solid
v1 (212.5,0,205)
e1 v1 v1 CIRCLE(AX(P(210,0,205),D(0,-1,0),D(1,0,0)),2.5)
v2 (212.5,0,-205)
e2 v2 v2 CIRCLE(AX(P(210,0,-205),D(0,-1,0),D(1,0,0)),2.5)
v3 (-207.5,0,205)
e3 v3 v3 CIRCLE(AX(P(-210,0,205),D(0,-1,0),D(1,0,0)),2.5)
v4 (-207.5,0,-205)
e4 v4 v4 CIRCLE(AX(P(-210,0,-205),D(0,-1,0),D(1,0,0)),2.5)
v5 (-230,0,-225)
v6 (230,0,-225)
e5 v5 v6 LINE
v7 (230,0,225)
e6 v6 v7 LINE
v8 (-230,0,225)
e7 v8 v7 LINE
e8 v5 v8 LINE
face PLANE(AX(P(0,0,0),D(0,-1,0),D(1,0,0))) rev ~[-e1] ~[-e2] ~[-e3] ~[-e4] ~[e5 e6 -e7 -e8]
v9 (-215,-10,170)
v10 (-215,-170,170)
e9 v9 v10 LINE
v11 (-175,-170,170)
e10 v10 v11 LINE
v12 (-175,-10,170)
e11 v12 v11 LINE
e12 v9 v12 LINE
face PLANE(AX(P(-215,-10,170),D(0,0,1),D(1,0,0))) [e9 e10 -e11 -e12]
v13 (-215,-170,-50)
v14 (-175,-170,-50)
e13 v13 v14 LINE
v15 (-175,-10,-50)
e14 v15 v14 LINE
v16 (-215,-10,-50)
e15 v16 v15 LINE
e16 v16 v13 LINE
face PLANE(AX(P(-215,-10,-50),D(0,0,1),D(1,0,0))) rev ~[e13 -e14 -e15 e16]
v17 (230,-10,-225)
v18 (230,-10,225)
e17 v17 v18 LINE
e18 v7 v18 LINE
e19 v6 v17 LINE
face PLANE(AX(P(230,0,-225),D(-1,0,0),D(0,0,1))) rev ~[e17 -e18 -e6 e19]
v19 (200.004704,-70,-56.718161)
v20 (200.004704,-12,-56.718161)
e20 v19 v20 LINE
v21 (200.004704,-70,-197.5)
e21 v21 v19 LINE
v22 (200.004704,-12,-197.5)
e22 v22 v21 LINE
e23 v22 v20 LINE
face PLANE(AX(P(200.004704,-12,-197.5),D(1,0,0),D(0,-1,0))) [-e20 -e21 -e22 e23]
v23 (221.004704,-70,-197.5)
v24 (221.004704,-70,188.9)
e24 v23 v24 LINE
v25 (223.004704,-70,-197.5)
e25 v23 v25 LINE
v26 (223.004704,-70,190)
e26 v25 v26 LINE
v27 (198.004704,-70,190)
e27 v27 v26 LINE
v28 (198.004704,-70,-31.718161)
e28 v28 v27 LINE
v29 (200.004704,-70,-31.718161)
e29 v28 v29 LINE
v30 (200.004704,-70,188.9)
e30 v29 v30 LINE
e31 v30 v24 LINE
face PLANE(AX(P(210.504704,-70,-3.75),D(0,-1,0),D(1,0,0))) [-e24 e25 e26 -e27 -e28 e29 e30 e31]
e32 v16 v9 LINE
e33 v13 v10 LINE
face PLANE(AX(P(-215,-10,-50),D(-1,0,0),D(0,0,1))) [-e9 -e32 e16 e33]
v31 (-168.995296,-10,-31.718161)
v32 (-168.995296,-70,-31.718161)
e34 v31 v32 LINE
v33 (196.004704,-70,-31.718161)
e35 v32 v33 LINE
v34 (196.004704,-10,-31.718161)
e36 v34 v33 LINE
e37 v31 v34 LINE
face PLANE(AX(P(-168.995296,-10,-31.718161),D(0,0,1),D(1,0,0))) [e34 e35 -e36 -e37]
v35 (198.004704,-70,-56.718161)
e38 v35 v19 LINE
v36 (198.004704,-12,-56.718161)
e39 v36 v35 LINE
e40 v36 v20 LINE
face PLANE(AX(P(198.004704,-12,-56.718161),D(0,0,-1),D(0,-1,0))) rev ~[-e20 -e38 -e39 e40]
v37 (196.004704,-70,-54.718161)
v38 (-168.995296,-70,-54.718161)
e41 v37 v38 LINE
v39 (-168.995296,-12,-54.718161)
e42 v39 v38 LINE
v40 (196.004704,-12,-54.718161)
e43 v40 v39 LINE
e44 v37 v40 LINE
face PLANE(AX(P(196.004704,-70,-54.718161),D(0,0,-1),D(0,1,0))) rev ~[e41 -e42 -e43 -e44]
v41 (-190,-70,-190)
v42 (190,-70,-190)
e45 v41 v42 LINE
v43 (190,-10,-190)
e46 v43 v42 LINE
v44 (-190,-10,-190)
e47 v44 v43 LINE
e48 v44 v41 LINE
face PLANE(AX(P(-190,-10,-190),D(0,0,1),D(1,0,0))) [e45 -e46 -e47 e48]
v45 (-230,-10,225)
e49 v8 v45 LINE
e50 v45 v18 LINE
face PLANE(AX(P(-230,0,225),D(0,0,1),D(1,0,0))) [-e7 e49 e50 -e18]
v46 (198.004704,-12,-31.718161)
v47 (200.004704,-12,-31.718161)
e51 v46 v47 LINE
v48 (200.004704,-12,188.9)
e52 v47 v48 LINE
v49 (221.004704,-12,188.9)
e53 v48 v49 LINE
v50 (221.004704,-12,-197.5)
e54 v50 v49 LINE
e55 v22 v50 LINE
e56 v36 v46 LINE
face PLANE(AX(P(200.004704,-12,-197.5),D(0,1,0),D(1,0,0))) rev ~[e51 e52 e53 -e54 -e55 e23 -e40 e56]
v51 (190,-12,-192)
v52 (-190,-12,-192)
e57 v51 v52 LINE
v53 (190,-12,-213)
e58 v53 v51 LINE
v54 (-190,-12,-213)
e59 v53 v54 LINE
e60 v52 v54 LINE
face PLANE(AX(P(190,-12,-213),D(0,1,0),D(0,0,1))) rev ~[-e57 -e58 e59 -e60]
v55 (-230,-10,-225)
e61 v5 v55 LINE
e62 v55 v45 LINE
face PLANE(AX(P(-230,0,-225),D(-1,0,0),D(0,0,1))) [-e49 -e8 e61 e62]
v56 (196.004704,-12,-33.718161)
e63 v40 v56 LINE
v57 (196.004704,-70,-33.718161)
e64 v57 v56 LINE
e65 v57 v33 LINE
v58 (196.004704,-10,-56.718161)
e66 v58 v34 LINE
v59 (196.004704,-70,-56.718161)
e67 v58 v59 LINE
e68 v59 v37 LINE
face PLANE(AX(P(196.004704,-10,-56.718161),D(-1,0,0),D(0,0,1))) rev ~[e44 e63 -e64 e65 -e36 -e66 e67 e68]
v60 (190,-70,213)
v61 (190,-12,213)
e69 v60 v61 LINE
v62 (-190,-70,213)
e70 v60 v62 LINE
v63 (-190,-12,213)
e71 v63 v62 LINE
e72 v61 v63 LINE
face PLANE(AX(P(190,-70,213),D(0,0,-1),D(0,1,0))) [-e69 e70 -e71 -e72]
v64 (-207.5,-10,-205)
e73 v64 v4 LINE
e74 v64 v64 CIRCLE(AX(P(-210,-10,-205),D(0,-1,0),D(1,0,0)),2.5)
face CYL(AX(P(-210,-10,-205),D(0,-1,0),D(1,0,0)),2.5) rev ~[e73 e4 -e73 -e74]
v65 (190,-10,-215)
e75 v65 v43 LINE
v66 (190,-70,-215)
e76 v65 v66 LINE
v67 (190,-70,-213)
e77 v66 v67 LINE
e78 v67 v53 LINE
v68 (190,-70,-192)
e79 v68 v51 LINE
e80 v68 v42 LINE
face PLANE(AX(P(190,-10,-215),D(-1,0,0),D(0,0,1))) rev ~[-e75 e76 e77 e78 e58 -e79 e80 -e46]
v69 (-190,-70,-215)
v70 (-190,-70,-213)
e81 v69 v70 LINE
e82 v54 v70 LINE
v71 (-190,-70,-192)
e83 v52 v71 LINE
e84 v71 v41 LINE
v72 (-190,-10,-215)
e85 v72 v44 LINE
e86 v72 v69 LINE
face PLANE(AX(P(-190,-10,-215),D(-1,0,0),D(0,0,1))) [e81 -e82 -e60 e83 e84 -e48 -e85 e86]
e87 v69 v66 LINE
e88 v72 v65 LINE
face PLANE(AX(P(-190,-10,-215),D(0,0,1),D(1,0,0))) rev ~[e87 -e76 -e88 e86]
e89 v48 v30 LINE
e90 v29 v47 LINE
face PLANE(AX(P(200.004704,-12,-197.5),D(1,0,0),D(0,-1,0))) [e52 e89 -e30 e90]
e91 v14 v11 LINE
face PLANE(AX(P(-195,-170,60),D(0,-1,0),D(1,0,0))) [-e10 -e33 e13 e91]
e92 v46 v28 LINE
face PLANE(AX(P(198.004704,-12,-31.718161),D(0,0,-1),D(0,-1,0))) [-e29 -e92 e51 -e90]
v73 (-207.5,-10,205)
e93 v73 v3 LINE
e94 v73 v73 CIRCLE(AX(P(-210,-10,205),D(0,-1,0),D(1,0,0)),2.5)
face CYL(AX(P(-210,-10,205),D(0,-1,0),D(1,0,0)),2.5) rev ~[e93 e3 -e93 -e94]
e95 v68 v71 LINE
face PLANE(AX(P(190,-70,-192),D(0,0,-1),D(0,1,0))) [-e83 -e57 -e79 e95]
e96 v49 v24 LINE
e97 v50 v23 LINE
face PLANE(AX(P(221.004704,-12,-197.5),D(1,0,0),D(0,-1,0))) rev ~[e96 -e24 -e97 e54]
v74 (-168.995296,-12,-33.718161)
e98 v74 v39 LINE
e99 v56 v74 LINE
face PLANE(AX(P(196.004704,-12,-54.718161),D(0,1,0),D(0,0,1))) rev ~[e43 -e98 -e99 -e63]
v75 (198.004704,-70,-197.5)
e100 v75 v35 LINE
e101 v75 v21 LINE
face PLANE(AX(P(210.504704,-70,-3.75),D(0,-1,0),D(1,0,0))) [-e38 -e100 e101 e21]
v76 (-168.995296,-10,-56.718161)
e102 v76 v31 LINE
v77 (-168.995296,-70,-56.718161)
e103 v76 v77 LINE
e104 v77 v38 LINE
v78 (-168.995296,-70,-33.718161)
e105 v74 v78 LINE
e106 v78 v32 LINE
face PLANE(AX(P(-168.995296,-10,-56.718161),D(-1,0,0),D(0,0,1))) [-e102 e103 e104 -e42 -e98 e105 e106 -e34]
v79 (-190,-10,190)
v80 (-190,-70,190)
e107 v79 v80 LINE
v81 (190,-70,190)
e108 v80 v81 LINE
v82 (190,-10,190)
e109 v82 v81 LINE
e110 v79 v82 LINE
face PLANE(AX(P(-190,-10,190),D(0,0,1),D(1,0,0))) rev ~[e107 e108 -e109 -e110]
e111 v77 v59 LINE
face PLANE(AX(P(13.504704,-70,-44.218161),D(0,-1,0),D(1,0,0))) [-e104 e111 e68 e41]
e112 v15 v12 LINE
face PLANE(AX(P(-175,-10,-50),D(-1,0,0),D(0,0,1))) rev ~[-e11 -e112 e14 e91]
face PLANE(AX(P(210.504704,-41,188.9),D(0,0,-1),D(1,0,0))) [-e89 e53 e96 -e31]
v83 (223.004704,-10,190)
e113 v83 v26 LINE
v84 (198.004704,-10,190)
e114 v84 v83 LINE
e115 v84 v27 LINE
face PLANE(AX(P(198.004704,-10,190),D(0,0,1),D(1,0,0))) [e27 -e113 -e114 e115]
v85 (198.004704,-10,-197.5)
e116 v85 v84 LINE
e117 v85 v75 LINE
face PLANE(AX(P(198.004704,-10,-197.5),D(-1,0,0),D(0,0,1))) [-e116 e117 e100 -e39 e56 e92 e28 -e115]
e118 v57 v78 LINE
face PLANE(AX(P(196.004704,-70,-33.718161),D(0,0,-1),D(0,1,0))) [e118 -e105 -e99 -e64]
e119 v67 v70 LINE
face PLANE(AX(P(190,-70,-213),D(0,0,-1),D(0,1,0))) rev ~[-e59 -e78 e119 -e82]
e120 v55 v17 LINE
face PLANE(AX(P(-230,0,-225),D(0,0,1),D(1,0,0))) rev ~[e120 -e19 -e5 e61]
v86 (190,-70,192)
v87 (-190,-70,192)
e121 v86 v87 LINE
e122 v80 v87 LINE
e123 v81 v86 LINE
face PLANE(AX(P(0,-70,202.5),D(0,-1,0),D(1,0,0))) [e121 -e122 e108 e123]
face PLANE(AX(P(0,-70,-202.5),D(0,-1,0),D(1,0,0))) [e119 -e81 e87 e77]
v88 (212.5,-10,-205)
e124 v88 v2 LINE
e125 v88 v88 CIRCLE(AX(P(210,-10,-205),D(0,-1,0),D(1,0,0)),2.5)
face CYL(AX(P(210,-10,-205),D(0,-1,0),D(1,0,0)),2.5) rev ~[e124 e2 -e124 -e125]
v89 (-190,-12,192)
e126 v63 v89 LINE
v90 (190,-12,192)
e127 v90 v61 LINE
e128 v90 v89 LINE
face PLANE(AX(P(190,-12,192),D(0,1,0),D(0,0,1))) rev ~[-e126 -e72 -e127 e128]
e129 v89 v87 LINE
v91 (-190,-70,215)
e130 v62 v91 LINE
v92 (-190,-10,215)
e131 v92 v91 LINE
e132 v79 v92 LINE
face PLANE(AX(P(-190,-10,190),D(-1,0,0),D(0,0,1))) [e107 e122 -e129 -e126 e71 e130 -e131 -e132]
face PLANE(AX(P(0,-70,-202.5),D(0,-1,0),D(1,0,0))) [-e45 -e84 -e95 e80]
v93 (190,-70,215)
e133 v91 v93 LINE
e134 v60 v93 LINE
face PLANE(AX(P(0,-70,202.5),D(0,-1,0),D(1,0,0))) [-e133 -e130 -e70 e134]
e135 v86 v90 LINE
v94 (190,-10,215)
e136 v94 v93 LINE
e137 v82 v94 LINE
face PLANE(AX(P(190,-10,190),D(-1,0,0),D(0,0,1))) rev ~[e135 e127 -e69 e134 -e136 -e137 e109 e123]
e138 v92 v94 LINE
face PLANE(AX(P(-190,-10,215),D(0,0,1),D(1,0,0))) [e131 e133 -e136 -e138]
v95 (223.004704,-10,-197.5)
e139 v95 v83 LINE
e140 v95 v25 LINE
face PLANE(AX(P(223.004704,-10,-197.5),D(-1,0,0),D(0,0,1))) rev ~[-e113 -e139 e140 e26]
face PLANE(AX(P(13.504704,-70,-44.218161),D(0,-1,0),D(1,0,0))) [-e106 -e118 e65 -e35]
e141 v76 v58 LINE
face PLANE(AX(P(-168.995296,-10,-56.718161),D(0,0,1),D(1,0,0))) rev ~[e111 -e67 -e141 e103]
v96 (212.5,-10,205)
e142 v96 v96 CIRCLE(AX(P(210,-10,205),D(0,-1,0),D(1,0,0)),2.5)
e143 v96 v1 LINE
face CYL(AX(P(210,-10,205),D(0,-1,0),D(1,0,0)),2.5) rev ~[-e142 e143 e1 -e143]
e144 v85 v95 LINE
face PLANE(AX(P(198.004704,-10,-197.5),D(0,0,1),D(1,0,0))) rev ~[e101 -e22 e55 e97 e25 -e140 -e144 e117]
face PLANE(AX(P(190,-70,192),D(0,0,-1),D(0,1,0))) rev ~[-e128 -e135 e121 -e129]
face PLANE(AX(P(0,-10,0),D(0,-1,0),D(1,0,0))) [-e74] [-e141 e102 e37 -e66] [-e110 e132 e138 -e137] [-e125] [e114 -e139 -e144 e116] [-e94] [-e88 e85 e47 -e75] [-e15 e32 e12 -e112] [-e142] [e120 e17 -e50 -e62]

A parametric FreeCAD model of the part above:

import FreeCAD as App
import Part
import Sketcher


def add_polygon(sketch, points):
    """Adds a closed chain of lines whose ends are joined by coincident constraints."""
    first, n = sketch.GeometryCount, len(points)
    for a, b in zip(points, points[1:] + points[:1]):
        sketch.addGeometry(Part.LineSegment(App.Vector(*a, 0), App.Vector(*b, 0)), False)
    for i in range(n):
        sketch.addConstraint(Sketcher.Constraint("Coincident", first + i, 2, first + (i + 1) % n, 1))

doc = App.newDocument("Part")
body = doc.addObject("PartDesign::Body", "Body")

# Sketch on XZ plane
sketch1 = doc.addObject("Sketcher::SketchObject", "Sketch")
body.addObject(sketch1)
sketch1.AttachmentSupport = (doc.XZ_Plane, [""])
sketch1.MapMode = "FlatFace"
add_polygon(sketch1, [(-230, 225), (-230, -225), (230, -225), (230, 225)])  # lines 0-3
sketch1.addConstraint([
    Sketcher.Constraint("Vertical", 0),
    Sketcher.Constraint("Horizontal", 1),
    Sketcher.Constraint("Vertical", 2),
    Sketcher.Constraint("Horizontal", 3),
    Sketcher.Constraint("Symmetric", 0, 2, 2, 2, -1, 1),
    Sketcher.Constraint("DistanceX", 1, 1, 1, 2, 460.0),
    Sketcher.Constraint("DistanceY", 0, 2, 0, 1, 450.0),
])
pad1 = doc.addObject("PartDesign::Pad", "Pad")
body.addObject(pad1)
pad1.Profile = sketch1
pad1.Length = 10

# Sketch on XZ plane
sketch2 = doc.addObject("Sketcher::SketchObject", "Sketch001")
body.addObject(sketch2)
sketch2.AttachmentSupport = (doc.XZ_Plane, [""])
sketch2.MapMode = "FlatFace"
sketch2.AttachmentOffset = App.Placement(App.Vector(0, 0, 10), App.Rotation())
sketch2.addGeometry([
    Part.Circle(App.Vector(210, 205, 0), App.Vector(0, 0, 1), 2.5),
    Part.Circle(App.Vector(-210, 205, 0), App.Vector(0, 0, 1), 2.5),
    Part.Circle(App.Vector(-210, -205, 0), App.Vector(0, 0, 1), 2.5),
    Part.Circle(App.Vector(210, -205, 0), App.Vector(0, 0, 1), 2.5),
], False)
sketch2.addConstraint([
    Sketcher.Constraint("Equal", 0, 1),
    Sketcher.Constraint("Equal", 1, 2),
    Sketcher.Constraint("Equal", 2, 3),
    Sketcher.Constraint("Symmetric", 0, 3, 2, 3, -1, 1),
    Sketcher.Constraint("Symmetric", 1, 3, 3, 3, -1, 1),
    Sketcher.Constraint("Symmetric", 0, 3, 1, 3, -2),
    Sketcher.Constraint("Diameter", 0, 5.0),
    Sketcher.Constraint("DistanceX", -1, 1, 0, 3, 210.0),
    Sketcher.Constraint("DistanceY", -1, 1, 0, 3, 205.0),
])
pocket1 = doc.addObject("PartDesign::Pocket", "Pocket")
body.addObject(pocket1)
pocket1.Profile = sketch2
pocket1.Length = 23

# Sketch on XZ plane
sketch3 = doc.addObject("Sketcher::SketchObject", "Sketch002")
body.addObject(sketch3)
sketch3.AttachmentSupport = (doc.XZ_Plane, [""])
sketch3.MapMode = "FlatFace"
sketch3.AttachmentOffset = App.Placement(App.Vector(0, 0, 10), App.Rotation())
add_polygon(sketch3, [(-215, 170), (-215, -50), (-175, -50), (-175, 170)])  # lines 0-3
sketch3.addConstraint([
    Sketcher.Constraint("Vertical", 0),
    Sketcher.Constraint("Horizontal", 1),
    Sketcher.Constraint("Vertical", 2),
    Sketcher.Constraint("Horizontal", 3),
    Sketcher.Constraint("DistanceX", 1, 1, 1, 2, 40.0),
    Sketcher.Constraint("DistanceY", 0, 2, 0, 1, 220.0),
    Sketcher.Constraint("DistanceX", 0, 2, -1, 1, 215.0),
    Sketcher.Constraint("DistanceY", 0, 2, -1, 1, 50.0),
])
pad2 = doc.addObject("PartDesign::Pad", "Pad001")
body.addObject(pad2)
pad2.Profile = sketch3
pad2.Length = 160

# Sketch on XZ plane
sketch4 = doc.addObject("Sketcher::SketchObject", "Sketch003")
body.addObject(sketch4)
sketch4.AttachmentSupport = (doc.XZ_Plane, [""])
sketch4.MapMode = "FlatFace"
sketch4.AttachmentOffset = App.Placement(App.Vector(0, 0, 10), App.Rotation())
add_polygon(sketch4, [(-190, 215), (-190, 190), (190, 190), (190, 215)])  # lines 0-3
add_polygon(sketch4, [(-190, -190), (-190, -215), (190, -215), (190, -190)])  # lines 4-7
sketch4.addConstraint([
    Sketcher.Constraint("Vertical", 0),
    Sketcher.Constraint("Horizontal", 1),
    Sketcher.Constraint("Vertical", 2),
    Sketcher.Constraint("Horizontal", 3),
    Sketcher.Constraint("Vertical", 4),
    Sketcher.Constraint("Horizontal", 5),
    Sketcher.Constraint("Vertical", 6),
    Sketcher.Constraint("Horizontal", 7),
    Sketcher.Constraint("Symmetric", 2, 2, 4, 2, -1, 1),
    Sketcher.Constraint("Symmetric", 0, 2, 6, 2, -1, 1),
    Sketcher.Constraint("Vertical", 3, 2, 4, 2),
    Sketcher.Constraint("DistanceX", 1, 1, 1, 2, 380.0),
    Sketcher.Constraint("DistanceY", 0, 2, 0, 1, 25.0),
    Sketcher.Constraint("DistanceY", -1, 1, 0, 2, 190.0),
])
pad3 = doc.addObject("PartDesign::Pad", "Pad002")
body.addObject(pad3)
pad3.Profile = sketch4
pad3.Length = 60

# Sketch on YZ plane
sketch5 = doc.addObject("Sketcher::SketchObject", "Sketch004")
body.addObject(sketch5)
sketch5.AttachmentSupport = (doc.YZ_Plane, [""])
sketch5.MapMode = "FlatFace"
sketch5.AttachmentOffset = App.Placement(App.Vector(0, 0, 190), App.Rotation())
add_polygon(sketch5, [(-70, 213), (-70, 192), (-12, 192), (-12, 213)])  # lines 0-3
sketch5.addConstraint([
    Sketcher.Constraint("Vertical", 0),
    Sketcher.Constraint("Horizontal", 1),
    Sketcher.Constraint("Vertical", 2),
    Sketcher.Constraint("Horizontal", 3),
    Sketcher.Constraint("DistanceX", 1, 1, 1, 2, 58.0),
    Sketcher.Constraint("DistanceY", 0, 2, 0, 1, 21.0),
    Sketcher.Constraint("DistanceX", 0, 2, -1, 1, 70.0),
    Sketcher.Constraint("DistanceY", -1, 1, 0, 2, 192.0),
])
pocket2 = doc.addObject("PartDesign::Pocket", "Pocket001")
body.addObject(pocket2)
pocket2.Profile = sketch5
pocket2.Length = 382.2

# Sketch on YZ plane
sketch6 = doc.addObject("Sketcher::SketchObject", "Sketch005")
body.addObject(sketch6)
sketch6.AttachmentSupport = (doc.YZ_Plane, [""])
sketch6.MapMode = "FlatFace"
sketch6.AttachmentOffset = App.Placement(App.Vector(0, 0, 190), App.Rotation())
add_polygon(sketch6, [(-70, -192), (-70, -213), (-12, -213), (-12, -192)])  # lines 0-3
sketch6.addConstraint([
    Sketcher.Constraint("Vertical", 0),
    Sketcher.Constraint("Horizontal", 1),
    Sketcher.Constraint("Vertical", 2),
    Sketcher.Constraint("Horizontal", 3),
    Sketcher.Constraint("DistanceX", 1, 1, 1, 2, 58.0),
    Sketcher.Constraint("DistanceY", 0, 2, 0, 1, 21.0),
    Sketcher.Constraint("DistanceX", 0, 2, -1, 1, 70.0),
    Sketcher.Constraint("DistanceY", 0, 2, -1, 1, 213.0),
])
pocket3 = doc.addObject("PartDesign::Pocket", "Pocket002")
body.addObject(pocket3)
pocket3.Profile = sketch6
pocket3.Length = 401

# Sketch on XZ plane
sketch7 = doc.addObject("Sketcher::SketchObject", "Sketch006")
body.addObject(sketch7)
sketch7.AttachmentSupport = (doc.XZ_Plane, [""])
sketch7.MapMode = "FlatFace"
sketch7.AttachmentOffset = App.Placement(App.Vector(0, 0, 10), App.Rotation())
add_polygon(sketch7, [(198.004704, 190), (198.004704, -197.5), (223.004704, -197.5), (223.004704, 190)])  # lines 0-3
sketch7.addConstraint([
    Sketcher.Constraint("Vertical", 0),
    Sketcher.Constraint("Horizontal", 1),
    Sketcher.Constraint("Vertical", 2),
    Sketcher.Constraint("Horizontal", 3),
    Sketcher.Constraint("DistanceX", 1, 1, 1, 2, 25.0),
    Sketcher.Constraint("DistanceY", 0, 2, 0, 1, 387.5),
    Sketcher.Constraint("DistanceY", -1, 1, 2, 2, 190.0),
    Sketcher.Constraint("DistanceX", -1, 1, 0, 2, 198.004704),
])
pad4 = doc.addObject("PartDesign::Pad", "Pad003")
body.addObject(pad4)
pad4.Profile = sketch7
pad4.Length = 60

# Sketch on XY plane
sketch8 = doc.addObject("Sketcher::SketchObject", "Sketch007")
body.addObject(sketch8)
sketch8.AttachmentSupport = (doc.XY_Plane, [""])
sketch8.MapMode = "FlatFace"
sketch8.AttachmentOffset = App.Placement(App.Vector(0, 0, -197.5), App.Rotation())
add_polygon(sketch8, [(200.004704, -70), (200.004704, -12), (221.004704, -12), (221.004704, -70)])  # lines 0-3
sketch8.addConstraint([
    Sketcher.Constraint("Vertical", 0),
    Sketcher.Constraint("Horizontal", 1),
    Sketcher.Constraint("Vertical", 2),
    Sketcher.Constraint("Horizontal", 3),
    Sketcher.Constraint("DistanceX", 1, 1, 1, 2, 21.0),
    Sketcher.Constraint("DistanceY", 0, 1, 0, 2, 58.0),
    Sketcher.Constraint("DistanceY", 0, 2, -1, 1, 12.0),
    Sketcher.Constraint("DistanceX", -1, 1, 0, 2, 200.004704),
])
pocket4 = doc.addObject("PartDesign::Pocket", "Pocket003")
body.addObject(pocket4)
pocket4.Profile = sketch8
pocket4.Length = 386.4
pocket4.Reversed = True

# Sketch on YZ plane
sketch9 = doc.addObject("Sketcher::SketchObject", "Sketch008")
body.addObject(sketch9)
sketch9.AttachmentSupport = (doc.YZ_Plane, [""])
sketch9.MapMode = "FlatFace"
sketch9.AttachmentOffset = App.Placement(App.Vector(0, 0, 198.004704), App.Rotation())
add_polygon(sketch9, [(-12, -31.718161), (-12, -56.718161), (-70, -56.718161), (-70, -31.718161)])  # lines 0-3
sketch9.addConstraint([
    Sketcher.Constraint("Vertical", 0),
    Sketcher.Constraint("Horizontal", 1),
    Sketcher.Constraint("Vertical", 2),
    Sketcher.Constraint("Horizontal", 3),
    Sketcher.Constraint("DistanceX", 1, 2, 1, 1, 58.0),
    Sketcher.Constraint("DistanceY", 0, 2, 0, 1, 25.0),
    Sketcher.Constraint("DistanceX", 0, 2, -1, 1, 12.0),
    Sketcher.Constraint("DistanceY", 0, 2, -1, 1, 56.718161),
])
pocket5 = doc.addObject("PartDesign::Pocket", "Pocket004")
body.addObject(pocket5)
pocket5.Profile = sketch9
pocket5.Length = 3.3
pocket5.Reversed = True

# Sketch on XZ plane
sketch10 = doc.addObject("Sketcher::SketchObject", "Sketch009")
body.addObject(sketch10)
sketch10.AttachmentSupport = (doc.XZ_Plane, [""])
sketch10.MapMode = "FlatFace"
sketch10.AttachmentOffset = App.Placement(App.Vector(0, 0, 10), App.Rotation())
add_polygon(sketch10, [(-168.995296, -31.718161), (-168.995296, -56.718161), (196.004704, -56.718161), (196.004704, -31.718161)])  # lines 0-3
sketch10.addConstraint([
    Sketcher.Constraint("Vertical", 0),
    Sketcher.Constraint("Horizontal", 1),
    Sketcher.Constraint("Vertical", 2),
    Sketcher.Constraint("Horizontal", 3),
    Sketcher.Constraint("DistanceX", 1, 1, 1, 2, 365.0),
    Sketcher.Constraint("DistanceY", 0, 2, 0, 1, 25.0),
    Sketcher.Constraint("DistanceY", 0, 2, -1, 1, 56.718161),
    Sketcher.Constraint("DistanceX", 0, 2, -1, 1, 168.995296),
])
pad5 = doc.addObject("PartDesign::Pad", "Pad004")
body.addObject(pad5)
pad5.Profile = sketch10
pad5.Length = 60

# Sketch on YZ plane
sketch11 = doc.addObject("Sketcher::SketchObject", "Sketch010")
body.addObject(sketch11)
sketch11.AttachmentSupport = (doc.YZ_Plane, [""])
sketch11.MapMode = "FlatFace"
sketch11.AttachmentOffset = App.Placement(App.Vector(0, 0, 196.004704), App.Rotation())
add_polygon(sketch11, [(-70, -33.718161), (-70, -54.718161), (-12, -54.718161), (-12, -33.718161)])  # lines 0-3
sketch11.addConstraint([
    Sketcher.Constraint("Vertical", 0),
    Sketcher.Constraint("Horizontal", 1),
    Sketcher.Constraint("Vertical", 2),
    Sketcher.Constraint("Horizontal", 3),
    Sketcher.Constraint("DistanceX", 1, 1, 1, 2, 58.0),
    Sketcher.Constraint("DistanceY", 0, 2, 0, 1, 21.0),
    Sketcher.Constraint("DistanceX", 0, 2, -1, 1, 70.0),
    Sketcher.Constraint("DistanceY", 0, 2, -1, 1, 54.718161),
])
pocket6 = doc.addObject("PartDesign::Pocket", "Pocket005")
body.addObject(pocket6)
pocket6.Profile = sketch11
pocket6.Length = 366.6

doc.recompute()
